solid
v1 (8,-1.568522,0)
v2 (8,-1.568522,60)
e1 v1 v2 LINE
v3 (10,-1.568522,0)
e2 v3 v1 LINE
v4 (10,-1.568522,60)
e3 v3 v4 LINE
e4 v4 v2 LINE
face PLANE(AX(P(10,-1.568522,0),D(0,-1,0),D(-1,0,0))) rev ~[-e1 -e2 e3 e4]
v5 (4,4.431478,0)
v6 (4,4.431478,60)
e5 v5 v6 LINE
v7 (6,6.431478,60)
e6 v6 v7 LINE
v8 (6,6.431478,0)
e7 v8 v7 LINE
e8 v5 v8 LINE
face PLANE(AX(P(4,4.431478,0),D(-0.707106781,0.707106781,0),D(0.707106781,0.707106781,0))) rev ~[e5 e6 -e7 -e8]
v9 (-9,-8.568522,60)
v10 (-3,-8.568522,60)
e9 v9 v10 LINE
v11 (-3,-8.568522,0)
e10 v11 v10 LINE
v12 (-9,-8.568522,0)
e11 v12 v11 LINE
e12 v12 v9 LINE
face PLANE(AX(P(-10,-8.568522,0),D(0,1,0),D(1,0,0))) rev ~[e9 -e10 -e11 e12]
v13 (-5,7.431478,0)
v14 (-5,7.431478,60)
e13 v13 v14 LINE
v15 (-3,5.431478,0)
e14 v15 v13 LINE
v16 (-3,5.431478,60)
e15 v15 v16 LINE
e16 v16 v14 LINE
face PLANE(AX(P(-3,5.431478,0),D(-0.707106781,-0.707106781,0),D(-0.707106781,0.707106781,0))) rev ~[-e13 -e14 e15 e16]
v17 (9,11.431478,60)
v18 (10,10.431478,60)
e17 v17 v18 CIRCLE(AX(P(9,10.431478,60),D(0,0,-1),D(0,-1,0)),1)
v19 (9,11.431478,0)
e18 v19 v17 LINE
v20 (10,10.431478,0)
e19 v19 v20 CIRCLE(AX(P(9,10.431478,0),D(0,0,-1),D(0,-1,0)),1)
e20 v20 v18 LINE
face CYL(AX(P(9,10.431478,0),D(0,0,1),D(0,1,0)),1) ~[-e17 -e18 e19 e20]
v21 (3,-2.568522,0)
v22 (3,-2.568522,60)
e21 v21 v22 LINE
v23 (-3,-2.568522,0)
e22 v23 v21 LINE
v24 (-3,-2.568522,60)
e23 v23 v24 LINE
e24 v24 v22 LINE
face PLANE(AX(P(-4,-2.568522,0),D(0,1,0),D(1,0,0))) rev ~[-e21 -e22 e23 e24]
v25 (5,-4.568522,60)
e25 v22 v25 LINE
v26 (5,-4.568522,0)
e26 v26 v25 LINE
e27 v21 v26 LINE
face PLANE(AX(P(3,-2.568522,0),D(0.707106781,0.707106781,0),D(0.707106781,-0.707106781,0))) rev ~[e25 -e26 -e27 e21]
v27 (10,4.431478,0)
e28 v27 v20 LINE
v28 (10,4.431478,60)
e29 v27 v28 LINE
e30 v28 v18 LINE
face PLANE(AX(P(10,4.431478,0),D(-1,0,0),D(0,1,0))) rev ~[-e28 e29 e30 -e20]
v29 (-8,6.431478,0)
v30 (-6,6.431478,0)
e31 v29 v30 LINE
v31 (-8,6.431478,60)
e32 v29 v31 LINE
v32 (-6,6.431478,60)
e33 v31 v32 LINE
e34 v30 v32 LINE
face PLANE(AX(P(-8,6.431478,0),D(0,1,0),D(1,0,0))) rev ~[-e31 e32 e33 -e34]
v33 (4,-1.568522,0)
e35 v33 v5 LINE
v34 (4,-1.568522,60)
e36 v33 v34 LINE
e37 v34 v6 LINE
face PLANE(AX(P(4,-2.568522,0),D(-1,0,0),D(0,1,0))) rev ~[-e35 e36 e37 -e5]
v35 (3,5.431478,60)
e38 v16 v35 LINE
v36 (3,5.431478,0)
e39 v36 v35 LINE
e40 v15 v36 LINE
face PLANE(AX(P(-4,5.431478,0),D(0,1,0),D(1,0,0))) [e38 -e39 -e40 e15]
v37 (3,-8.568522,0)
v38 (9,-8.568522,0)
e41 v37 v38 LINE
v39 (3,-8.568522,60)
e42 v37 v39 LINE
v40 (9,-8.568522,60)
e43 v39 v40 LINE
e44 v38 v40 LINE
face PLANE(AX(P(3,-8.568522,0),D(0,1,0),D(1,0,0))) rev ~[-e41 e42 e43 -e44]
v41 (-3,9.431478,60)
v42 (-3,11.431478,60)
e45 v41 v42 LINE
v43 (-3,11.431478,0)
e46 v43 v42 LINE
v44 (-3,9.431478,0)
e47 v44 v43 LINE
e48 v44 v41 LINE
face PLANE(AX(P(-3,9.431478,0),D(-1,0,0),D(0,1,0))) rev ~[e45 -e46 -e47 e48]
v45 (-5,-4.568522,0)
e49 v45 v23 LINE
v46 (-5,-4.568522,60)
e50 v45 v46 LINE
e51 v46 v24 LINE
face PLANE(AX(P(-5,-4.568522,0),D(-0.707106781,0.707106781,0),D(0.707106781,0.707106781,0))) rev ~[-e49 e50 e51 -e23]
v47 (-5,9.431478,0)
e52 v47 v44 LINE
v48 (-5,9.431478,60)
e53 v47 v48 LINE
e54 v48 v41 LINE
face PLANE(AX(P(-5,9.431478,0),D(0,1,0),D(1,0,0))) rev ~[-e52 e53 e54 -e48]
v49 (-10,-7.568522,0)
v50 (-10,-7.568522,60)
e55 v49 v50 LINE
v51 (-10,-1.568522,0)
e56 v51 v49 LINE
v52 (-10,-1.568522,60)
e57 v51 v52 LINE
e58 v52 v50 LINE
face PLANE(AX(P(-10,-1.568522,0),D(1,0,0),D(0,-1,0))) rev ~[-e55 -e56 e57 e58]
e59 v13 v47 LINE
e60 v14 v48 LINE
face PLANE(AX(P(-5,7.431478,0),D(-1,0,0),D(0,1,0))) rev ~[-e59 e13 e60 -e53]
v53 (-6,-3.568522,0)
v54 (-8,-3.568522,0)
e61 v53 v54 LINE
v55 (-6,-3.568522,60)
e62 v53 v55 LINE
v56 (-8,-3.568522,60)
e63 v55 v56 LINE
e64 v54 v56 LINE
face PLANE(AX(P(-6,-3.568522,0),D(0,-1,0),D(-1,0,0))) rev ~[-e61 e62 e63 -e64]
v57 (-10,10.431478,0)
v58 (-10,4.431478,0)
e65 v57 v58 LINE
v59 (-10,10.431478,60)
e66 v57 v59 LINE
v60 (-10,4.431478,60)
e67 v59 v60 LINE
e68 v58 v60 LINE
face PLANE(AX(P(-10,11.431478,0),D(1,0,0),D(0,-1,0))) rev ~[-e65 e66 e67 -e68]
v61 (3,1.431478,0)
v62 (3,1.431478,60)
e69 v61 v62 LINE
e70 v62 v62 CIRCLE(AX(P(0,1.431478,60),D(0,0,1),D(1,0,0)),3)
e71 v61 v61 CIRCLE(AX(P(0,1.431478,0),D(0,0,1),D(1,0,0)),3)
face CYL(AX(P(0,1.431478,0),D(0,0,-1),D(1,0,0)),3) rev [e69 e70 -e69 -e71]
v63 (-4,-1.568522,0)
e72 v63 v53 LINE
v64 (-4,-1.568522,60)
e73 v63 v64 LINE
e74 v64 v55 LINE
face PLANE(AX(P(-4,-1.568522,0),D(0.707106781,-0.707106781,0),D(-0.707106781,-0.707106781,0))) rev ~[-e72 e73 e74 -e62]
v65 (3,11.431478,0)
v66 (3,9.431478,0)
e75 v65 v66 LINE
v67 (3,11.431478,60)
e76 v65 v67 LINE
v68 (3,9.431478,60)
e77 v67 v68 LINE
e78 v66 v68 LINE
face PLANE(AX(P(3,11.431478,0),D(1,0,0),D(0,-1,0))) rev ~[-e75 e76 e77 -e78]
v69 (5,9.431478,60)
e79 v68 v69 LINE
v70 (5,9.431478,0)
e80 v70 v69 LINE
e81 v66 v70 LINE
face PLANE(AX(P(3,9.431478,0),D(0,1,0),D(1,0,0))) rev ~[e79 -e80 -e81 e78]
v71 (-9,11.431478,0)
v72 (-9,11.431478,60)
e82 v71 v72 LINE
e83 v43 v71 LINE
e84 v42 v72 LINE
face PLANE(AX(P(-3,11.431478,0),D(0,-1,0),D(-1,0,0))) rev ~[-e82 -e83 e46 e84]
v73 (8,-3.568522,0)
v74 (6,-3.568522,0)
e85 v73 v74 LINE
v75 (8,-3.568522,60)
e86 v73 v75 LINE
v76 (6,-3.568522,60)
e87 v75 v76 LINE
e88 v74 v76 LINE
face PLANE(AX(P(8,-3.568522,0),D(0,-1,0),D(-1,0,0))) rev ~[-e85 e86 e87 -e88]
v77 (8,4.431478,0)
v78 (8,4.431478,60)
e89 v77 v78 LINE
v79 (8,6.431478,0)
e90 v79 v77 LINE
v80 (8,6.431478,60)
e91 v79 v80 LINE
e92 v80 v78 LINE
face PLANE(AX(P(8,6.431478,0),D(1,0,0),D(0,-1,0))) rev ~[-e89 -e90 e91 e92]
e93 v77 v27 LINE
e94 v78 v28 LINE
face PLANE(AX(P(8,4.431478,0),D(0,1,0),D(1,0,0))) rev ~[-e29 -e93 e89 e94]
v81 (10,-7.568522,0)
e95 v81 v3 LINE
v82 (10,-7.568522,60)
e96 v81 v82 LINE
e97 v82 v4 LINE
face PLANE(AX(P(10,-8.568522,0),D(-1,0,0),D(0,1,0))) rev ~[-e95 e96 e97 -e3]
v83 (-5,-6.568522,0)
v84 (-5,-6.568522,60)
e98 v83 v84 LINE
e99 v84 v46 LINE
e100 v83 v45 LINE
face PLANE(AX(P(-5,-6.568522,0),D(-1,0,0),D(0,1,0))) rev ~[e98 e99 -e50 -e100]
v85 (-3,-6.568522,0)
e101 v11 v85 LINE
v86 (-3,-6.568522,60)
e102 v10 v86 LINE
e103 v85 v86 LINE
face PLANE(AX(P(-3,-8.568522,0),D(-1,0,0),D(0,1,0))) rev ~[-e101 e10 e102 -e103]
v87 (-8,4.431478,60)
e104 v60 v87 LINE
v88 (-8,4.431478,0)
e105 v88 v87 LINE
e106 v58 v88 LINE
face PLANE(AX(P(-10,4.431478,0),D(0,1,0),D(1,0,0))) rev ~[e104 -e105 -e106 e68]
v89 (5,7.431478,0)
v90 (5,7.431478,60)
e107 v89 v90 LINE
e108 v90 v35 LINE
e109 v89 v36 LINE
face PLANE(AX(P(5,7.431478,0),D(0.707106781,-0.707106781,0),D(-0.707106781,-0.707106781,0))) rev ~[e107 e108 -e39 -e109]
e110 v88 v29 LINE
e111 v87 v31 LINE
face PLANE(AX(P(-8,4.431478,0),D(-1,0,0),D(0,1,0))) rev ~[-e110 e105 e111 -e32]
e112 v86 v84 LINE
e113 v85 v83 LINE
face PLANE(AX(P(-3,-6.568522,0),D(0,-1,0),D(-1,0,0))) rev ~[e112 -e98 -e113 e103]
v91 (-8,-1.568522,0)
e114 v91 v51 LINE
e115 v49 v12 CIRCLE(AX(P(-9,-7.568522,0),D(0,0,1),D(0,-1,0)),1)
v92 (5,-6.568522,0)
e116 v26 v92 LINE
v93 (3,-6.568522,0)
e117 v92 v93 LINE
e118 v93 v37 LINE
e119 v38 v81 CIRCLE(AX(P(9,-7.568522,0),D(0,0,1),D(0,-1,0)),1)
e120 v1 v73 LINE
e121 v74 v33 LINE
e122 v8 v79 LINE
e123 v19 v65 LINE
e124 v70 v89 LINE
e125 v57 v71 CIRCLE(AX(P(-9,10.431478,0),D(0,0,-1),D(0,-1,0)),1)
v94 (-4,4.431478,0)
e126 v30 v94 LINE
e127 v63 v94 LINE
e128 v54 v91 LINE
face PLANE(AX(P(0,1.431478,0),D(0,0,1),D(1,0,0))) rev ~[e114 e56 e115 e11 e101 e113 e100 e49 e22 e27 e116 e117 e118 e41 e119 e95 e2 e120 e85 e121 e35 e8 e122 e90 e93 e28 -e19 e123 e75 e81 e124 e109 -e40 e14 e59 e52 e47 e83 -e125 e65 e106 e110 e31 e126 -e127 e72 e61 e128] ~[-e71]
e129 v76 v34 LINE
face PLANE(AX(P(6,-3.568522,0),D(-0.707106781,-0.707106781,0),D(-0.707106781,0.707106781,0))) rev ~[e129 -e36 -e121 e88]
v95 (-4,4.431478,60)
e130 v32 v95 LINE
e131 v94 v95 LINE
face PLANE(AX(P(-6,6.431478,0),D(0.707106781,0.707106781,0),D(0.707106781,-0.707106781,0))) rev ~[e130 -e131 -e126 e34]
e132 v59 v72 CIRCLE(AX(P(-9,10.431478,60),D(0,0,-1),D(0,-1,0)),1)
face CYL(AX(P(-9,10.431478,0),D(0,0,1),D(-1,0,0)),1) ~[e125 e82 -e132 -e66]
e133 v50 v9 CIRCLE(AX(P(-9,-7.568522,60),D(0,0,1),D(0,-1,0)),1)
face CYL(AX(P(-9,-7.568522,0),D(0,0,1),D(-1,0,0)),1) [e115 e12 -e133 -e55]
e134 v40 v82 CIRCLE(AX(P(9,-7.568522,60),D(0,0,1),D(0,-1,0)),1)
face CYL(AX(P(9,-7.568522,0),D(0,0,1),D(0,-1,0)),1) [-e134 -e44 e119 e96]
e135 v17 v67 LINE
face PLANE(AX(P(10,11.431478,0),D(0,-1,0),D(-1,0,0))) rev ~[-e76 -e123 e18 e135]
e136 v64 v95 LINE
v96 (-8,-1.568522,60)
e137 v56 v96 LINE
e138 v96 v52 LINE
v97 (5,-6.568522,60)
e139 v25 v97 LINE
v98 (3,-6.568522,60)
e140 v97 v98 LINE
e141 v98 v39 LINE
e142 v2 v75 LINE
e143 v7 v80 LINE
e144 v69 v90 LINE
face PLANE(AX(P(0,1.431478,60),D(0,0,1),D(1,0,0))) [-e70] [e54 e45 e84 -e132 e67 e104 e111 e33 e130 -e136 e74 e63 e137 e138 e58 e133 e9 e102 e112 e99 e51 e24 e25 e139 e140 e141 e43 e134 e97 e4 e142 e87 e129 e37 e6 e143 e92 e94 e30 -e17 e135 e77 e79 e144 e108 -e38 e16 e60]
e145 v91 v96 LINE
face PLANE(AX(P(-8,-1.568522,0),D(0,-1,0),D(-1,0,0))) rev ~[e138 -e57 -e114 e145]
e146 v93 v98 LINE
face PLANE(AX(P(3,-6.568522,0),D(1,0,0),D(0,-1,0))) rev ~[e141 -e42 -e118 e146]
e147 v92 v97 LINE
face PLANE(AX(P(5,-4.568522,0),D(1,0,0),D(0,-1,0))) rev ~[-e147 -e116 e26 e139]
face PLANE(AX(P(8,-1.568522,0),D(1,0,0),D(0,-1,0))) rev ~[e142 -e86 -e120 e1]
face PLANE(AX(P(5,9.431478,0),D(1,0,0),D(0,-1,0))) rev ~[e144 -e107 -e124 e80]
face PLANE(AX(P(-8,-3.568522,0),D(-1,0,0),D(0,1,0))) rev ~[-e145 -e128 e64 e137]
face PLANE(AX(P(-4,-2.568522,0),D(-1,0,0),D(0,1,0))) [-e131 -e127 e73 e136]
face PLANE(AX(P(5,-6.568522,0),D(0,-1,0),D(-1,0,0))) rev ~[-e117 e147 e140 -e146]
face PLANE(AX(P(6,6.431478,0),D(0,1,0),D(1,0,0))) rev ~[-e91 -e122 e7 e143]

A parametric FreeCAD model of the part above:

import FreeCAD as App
import Part
import Sketcher
from FreeCAD import Vector
Q = App.Units.Quantity


def edges_at(feature, points):
    """Names of the edges that pass closest to the given points."""
    edges = feature.Shape.Edges
    near = lambda p: min(range(len(edges)), key=lambda i: edges[i].distToShape(Part.Vertex(*p))[0])
    return sorted({f"Edge{near(p) + 1}" for p in points})


def add_polygon(sketch, points):
    """Adds a closed chain of lines whose ends are joined by coincident constraints."""
    first, n = sketch.GeometryCount, len(points)
    for a, b in zip(points, points[1:] + points[:1]):
        sketch.addGeometry(Part.LineSegment(App.Vector(*a, 0), App.Vector(*b, 0)), False)
    for i in range(n):
        sketch.addConstraint(Sketcher.Constraint("Coincident", first + i, 2, first + (i + 1) % n, 1))

doc = App.newDocument("Part")
body = doc.addObject("PartDesign::Body", "Body")

# Sketch on XY plane
sketch1 = body.newObject("Sketcher::SketchObject", "Sketch")
sketch1.AttachmentSupport = (doc.getObject("XY_Plane"), [""])
sketch1.MapMode = "FlatFace"
add_polygon(sketch1, [(10, 11.4), (3, 11.4), (3, 9.4), (5, 9.4), (5, 7.4), (3, 5.4), (-3, 5.4), (-5, 7.4), (-5, 9.4), (-3, 9.4), (-3, 11.4), (-10, 11.4), (-10, 4.4), (-8, 4.4), (-8, 6.4), (-6, 6.4), (-4, 4.4), (-4, -1.6), (-6, -3.6), (-8, -3.6), (-8, -1.6), (-10, -1.6), (-10, -8.6), (-3, -8.6), (-3, -6.6), (-5, -6.6), (-5, -4.6), (-3, -2.6), (3, -2.6), (5, -4.6), (5, -6.6), (3, -6.6), (3, -8.6), (10, -8.6), (10, -1.6), (8, -1.6), (8, -3.6), (6, -3.6), (4, -1.6), (4, 4.4), (6, 6.4), (8, 6.4), (8, 4.4), (10, 4.4)])  # lines 0-43
sketch1.addGeometry(Part.Circle(Vector(0, 1.4, 0), Vector(0, 0, 1), 3), False)  # 44
sketch1.addConstraint(Sketcher.Constraint("Horizontal", 0))
sketch1.addConstraint(Sketcher.Constraint("Vertical", 1))
sketch1.addConstraint(Sketcher.Constraint("Horizontal", 2))
sketch1.addConstraint(Sketcher.Constraint("Vertical", 3))
sketch1.addConstraint(Sketcher.Constraint("Horizontal", 5))
sketch1.addConstraint(Sketcher.Constraint("Vertical", 7))
sketch1.addConstraint(Sketcher.Constraint("Horizontal", 8))
sketch1.addConstraint(Sketcher.Constraint("Vertical", 9))
sketch1.addConstraint(Sketcher.Constraint("Horizontal", 10))
sketch1.addConstraint(Sketcher.Constraint("Vertical", 11))
sketch1.addConstraint(Sketcher.Constraint("Horizontal", 12))
sketch1.addConstraint(Sketcher.Constraint("Vertical", 13))
sketch1.addConstraint(Sketcher.Constraint("Horizontal", 14))
sketch1.addConstraint(Sketcher.Constraint("Vertical", 16))
sketch1.addConstraint(Sketcher.Constraint("Horizontal", 18))
sketch1.addConstraint(Sketcher.Constraint("Vertical", 19))
sketch1.addConstraint(Sketcher.Constraint("Horizontal", 20))
sketch1.addConstraint(Sketcher.Constraint("Vertical", 21))
sketch1.addConstraint(Sketcher.Constraint("Horizontal", 22))
sketch1.addConstraint(Sketcher.Constraint("Vertical", 23))
sketch1.addConstraint(Sketcher.Constraint("Horizontal", 24))
sketch1.addConstraint(Sketcher.Constraint("Vertical", 25))
sketch1.addConstraint(Sketcher.Constraint("Horizontal", 27))
sketch1.addConstraint(Sketcher.Constraint("Vertical", 29))
sketch1.addConstraint(Sketcher.Constraint("Horizontal", 30))
sketch1.addConstraint(Sketcher.Constraint("Vertical", 31))
sketch1.addConstraint(Sketcher.Constraint("Horizontal", 32))
sketch1.addConstraint(Sketcher.Constraint("Vertical", 33))
sketch1.addConstraint(Sketcher.Constraint("Horizontal", 34))
sketch1.addConstraint(Sketcher.Constraint("Vertical", 35))
sketch1.addConstraint(Sketcher.Constraint("Horizontal", 36))
sketch1.addConstraint(Sketcher.Constraint("Vertical", 38))
sketch1.addConstraint(Sketcher.Constraint("Horizontal", 40))
sketch1.addConstraint(Sketcher.Constraint("Vertical", 41))
sketch1.addConstraint(Sketcher.Constraint("Horizontal", 42))
sketch1.addConstraint(Sketcher.Constraint("Vertical", 43))
sketch1.addConstraint(Sketcher.Constraint("Symmetric", 3, 2, 6, 2, -2))
sketch1.addConstraint(Sketcher.Constraint("Symmetric", 1, 2, 8, 2, -2))
sketch1.addConstraint(Sketcher.Constraint("Symmetric", 25, 2, 28, 2, -2))
sketch1.addConstraint(Sketcher.Constraint("Symmetric", 23, 2, 30, 2, -2))
sketch1.addConstraint(Sketcher.Constraint("Symmetric", 21, 2, 32, 2, -2))
sketch1.addConstraint(Sketcher.Constraint("Symmetric", 19, 2, 34, 2, -2))
sketch1.addConstraint(Sketcher.Constraint("Symmetric", 17, 2, 36, 2, -2))
sketch1.addConstraint(Sketcher.Constraint("Symmetric", 16, 2, 37, 2, -2))
sketch1.addConstraint(Sketcher.Constraint("Symmetric", 14, 2, 39, 2, -2))
sketch1.addConstraint(Sketcher.Constraint("Symmetric", 12, 2, 41, 2, -2))
sketch1.addConstraint(Sketcher.Constraint("Symmetric", 10, 2, 43, 2, -2))
sketch1.addConstraint(Sketcher.Constraint("PointOnObject", 44, 3, -2))
sketch1.addConstraint(Sketcher.Constraint("Perpendicular", 4, 6))
sketch1.addConstraint(Sketcher.Constraint("Parallel", 6, 15))
sketch1.addConstraint(Sketcher.Constraint("Perpendicular", 15, 17))
sketch1.addConstraint(Sketcher.Constraint("Parallel", 17, 26))
sketch1.addConstraint(Sketcher.Constraint("Perpendicular", 26, 28))
sketch1.addConstraint(Sketcher.Constraint("Parallel", 28, 37))
sketch1.addConstraint(Sketcher.Constraint("Perpendicular", 37, 39))
sketch1.addConstraint(Sketcher.Constraint("Horizontal", 12, 2, 15, 2))
sketch1.addConstraint(Sketcher.Constraint("Horizontal", 16, 2, 19, 2))
sketch1.addConstraint(Sketcher.Constraint("Vertical", 1, 2, 4, 2))
sketch1.addConstraint(Sketcher.Constraint("Vertical", 14, 2, 17, 2))
sketch1.addConstraint(Sketcher.Constraint("Vertical", 13, 2, 18, 2))
sketch1.addConstraint(Sketcher.Constraint("Vertical", 11, 2, 20, 2))
sketch1.addConstraint(Sketcher.Constraint("Vertical", 9, 2, 22, 2))
sketch1.addConstraint(Sketcher.Constraint("Vertical", 7, 2, 24, 2))
sketch1.addConstraint(Sketcher.Constraint("Vertical", 23, 2, 26, 2))
sketch1.addConstraint(Sketcher.Constraint("Equal", 8, 12))
sketch1.addConstraint(Sketcher.Constraint("Equal", 12, 14))
sketch1.addConstraint(Sketcher.Constraint("Equal", 42, 1))
sketch1.addConstraint(Sketcher.Constraint("Equal", 1, 3))
sketch1.addConstraint(Sketcher.Constraint("Equal", 32, 11))
sketch1.addConstraint(Sketcher.Constraint("Equal", 9, 13))
sketch1.addConstraint(Sketcher.Constraint("Equal", 27, 16))
sketch1.addConstraint(Sketcher.Constraint("Equal", 11, 21))
sketch1.addConstraint(Sketcher.Constraint("Equal", 19, 23))
sketch1.addConstraint(Sketcher.Constraint("Equal", 23, 25))
sketch1.addConstraint(Sketcher.Constraint("Diameter", 44, Q("6 mm")))
sketch1.addConstraint(Sketcher.Constraint("DistanceX", 0, 2, 0, 1, Q("7 mm")))
sketch1.addConstraint(Sketcher.Constraint("DistanceX", 2, 1, 2, 2, Q("2 mm")))
sketch1.addConstraint(Sketcher.Constraint("DistanceX", 5, 2, 5, 1, Q("6 mm")))
sketch1.addConstraint(Sketcher.Constraint("DistanceY", 44, 3, 0, 2, Q("10 mm")))
sketch1.addConstraint(Sketcher.Constraint("DistanceY", -1, 1, 44, 3, Q("1.431478 mm")))
pad1 = body.newObject("PartDesign::Pad", "Pad")
pad1.Profile = sketch1
pad1.Length = 60
doc.recompute()

fillet = body.newObject("PartDesign::Fillet", "Fillet")
fillet.Base = (pad1, edges_at(pad1, [
    (10, 11.431, 30),
    (10, -8.569, 30),
    (-10, -8.569, 30),
    (-10, 11.431, 30),
]))
fillet.Radius = 1

doc.recompute()
